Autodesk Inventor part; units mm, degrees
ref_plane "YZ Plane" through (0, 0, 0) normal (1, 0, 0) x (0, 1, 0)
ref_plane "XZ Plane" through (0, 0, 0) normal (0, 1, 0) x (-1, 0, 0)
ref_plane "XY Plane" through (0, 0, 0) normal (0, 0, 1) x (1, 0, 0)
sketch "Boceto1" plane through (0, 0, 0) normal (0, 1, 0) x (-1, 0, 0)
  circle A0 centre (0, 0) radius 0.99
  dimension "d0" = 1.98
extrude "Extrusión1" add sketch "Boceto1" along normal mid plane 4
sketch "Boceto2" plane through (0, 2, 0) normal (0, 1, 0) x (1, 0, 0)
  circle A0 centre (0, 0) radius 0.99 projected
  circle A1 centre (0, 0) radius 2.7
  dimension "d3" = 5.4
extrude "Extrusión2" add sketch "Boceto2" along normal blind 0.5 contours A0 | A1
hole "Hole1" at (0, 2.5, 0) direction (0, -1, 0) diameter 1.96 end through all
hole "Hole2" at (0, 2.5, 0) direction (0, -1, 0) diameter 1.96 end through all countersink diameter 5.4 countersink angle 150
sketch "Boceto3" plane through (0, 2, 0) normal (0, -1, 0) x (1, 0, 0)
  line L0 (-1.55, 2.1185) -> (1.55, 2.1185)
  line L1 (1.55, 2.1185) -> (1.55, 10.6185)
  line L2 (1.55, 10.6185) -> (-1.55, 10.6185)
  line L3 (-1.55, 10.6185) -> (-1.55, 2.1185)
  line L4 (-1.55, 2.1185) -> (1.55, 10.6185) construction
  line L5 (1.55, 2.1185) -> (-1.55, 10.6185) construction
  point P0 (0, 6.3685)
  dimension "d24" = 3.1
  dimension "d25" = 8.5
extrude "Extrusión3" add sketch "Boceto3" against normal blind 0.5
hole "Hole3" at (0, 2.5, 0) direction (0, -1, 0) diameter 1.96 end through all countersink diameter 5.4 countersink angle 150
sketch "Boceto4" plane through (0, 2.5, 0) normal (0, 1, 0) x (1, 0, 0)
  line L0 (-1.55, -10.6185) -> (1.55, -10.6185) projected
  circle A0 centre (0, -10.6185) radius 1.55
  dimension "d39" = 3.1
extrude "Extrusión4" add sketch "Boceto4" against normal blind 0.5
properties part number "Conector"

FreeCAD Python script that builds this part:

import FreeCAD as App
import Part
import Sketcher
Q = App.Units.Quantity


def add_polygon(sketch, points):
    """Adds a closed chain of lines whose ends are joined by coincident constraints."""
    first, n = sketch.GeometryCount, len(points)
    for a, b in zip(points, points[1:] + points[:1]):
        sketch.addGeometry(Part.LineSegment(App.Vector(*a, 0), App.Vector(*b, 0)), False)
    for i in range(n):
        sketch.addConstraint(Sketcher.Constraint("Coincident", first + i, 2, first + (i + 1) % n, 1))

doc = App.newDocument("Part")
body = doc.addObject("PartDesign::Body", "Body")

sketch1 = doc.addObject("Sketcher::SketchObject", "Sketch")
body.addObject(sketch1)
sketch1.AttachmentSupport = (doc.XZ_Plane, [""])
sketch1.MapMode = "FlatFace"
sketch1.addGeometry(Part.Circle(App.Vector(0, 0, 0), App.Vector(0, 0, 1), 0.99), False)
sketch1.addConstraint([
    Sketcher.Constraint("Coincident", 0, 3, -1, 1),
    Sketcher.Constraint("Diameter", 0, Q("1.98 mm")),
])
pad1 = doc.addObject("PartDesign::Pad", "Pad")
body.addObject(pad1)
pad1.Profile = sketch1
pad1.Length = 4
pad1.Midplane = True

sketch2 = doc.addObject("Sketcher::SketchObject", "Sketch001")
body.addObject(sketch2)
sketch2.AttachmentSupport = (doc.XZ_Plane, [""])
sketch2.MapMode = "FlatFace"
sketch2.AttachmentOffset = App.Placement(App.Vector(0, 0, -2), App.Rotation())
sketch2.addGeometry(Part.Circle(App.Vector(0, 0, 0), App.Vector(0, 0, 1), 2.7), False)
sketch2.addConstraint([
    Sketcher.Constraint("Coincident", 0, 3, -1, 1),
    Sketcher.Constraint("Diameter", 0, Q("5.4 mm")),
])
pad2 = doc.addObject("PartDesign::Pad", "Pad001")
body.addObject(pad2)
pad2.Profile = sketch2
pad2.Length = 0.5
pad2.Reversed = True

sketch3 = doc.addObject("Sketcher::SketchObject", "Sketch002")
body.addObject(sketch3)
sketch3.AttachmentSupport = (doc.XZ_Plane, [""])
sketch3.MapMode = "FlatFace"
sketch3.AttachmentOffset = App.Placement(App.Vector(0, 0, -2.5), App.Rotation())
sketch3.addGeometry(Part.Circle(App.Vector(0, 0, 0), App.Vector(0, 0, 1), 0.98), False)
sketch3.addConstraint([
    Sketcher.Constraint("Coincident", 0, 3, -1, 1),
    Sketcher.Constraint("Diameter", 0, Q("1.96 mm")),
])
doc.recompute()
hole = doc.addObject("PartDesign::Hole", "Hole")
body.addObject(hole)
hole.Profile = sketch3
hole.ThreadType = "None"
hole.Diameter = 1.96
hole.DepthType = "ThroughAll"
hole.Reversed = True

sketch4 = doc.addObject("Sketcher::SketchObject", "Sketch003")
body.addObject(sketch4)
sketch4.AttachmentSupport = (doc.XZ_Plane, [""])
sketch4.MapMode = "FlatFace"
sketch4.AttachmentOffset = App.Placement(App.Vector(0, 0, -2.5), App.Rotation())
sketch4.addGeometry(Part.Circle(App.Vector(0, 0, 0), App.Vector(0, 0, 1), 0.98), False)
sketch4.addConstraint([
    Sketcher.Constraint("Coincident", 0, 3, -1, 1),
    Sketcher.Constraint("Diameter", 0, Q("1.96 mm")),
])
doc.recompute()
hole2 = doc.addObject("PartDesign::Hole", "Hole001")
body.addObject(hole2)
hole2.Profile = sketch4
hole2.ThreadType = "None"
hole2.Diameter = 1.96
hole2.DepthType = "ThroughAll"
hole2.HoleCutType = "Countersink"
hole2.HoleCutDiameter = 5.4
hole2.HoleCutCountersinkAngle = 150
hole2.Reversed = True

sketch5 = doc.addObject("Sketcher::SketchObject", "Sketch004")
body.addObject(sketch5)
sketch5.AttachmentSupport = (doc.XZ_Plane, [""])
sketch5.MapMode = "FlatFace"
sketch5.AttachmentOffset = App.Placement(App.Vector(0, 0, -2), App.Rotation())
add_polygon(sketch5, [(-1.55, 10.6185), (-1.55, 2.1185), (1.55, 2.1185), (1.55, 10.6185)])
sketch5.addConstraint([
    Sketcher.Constraint("Vertical", 0),
    Sketcher.Constraint("Horizontal", 1),
    Sketcher.Constraint("Vertical", 2),
    Sketcher.Constraint("Horizontal", 3),
    Sketcher.Constraint("DistanceX", 1, 1, 1, 2, Q("3.1 mm")),
    Sketcher.Constraint("DistanceY", 0, 2, 0, 1, Q("8.5 mm")),
    Sketcher.Constraint("DistanceX", 0, 2, -1, 1, Q("1.55 mm")),
    Sketcher.Constraint("DistanceY", -1, 1, 0, 2, Q("2.1185 mm")),
])
pad3 = doc.addObject("PartDesign::Pad", "Pad002")
body.addObject(pad3)
pad3.Profile = sketch5
pad3.Length = 0.5
pad3.Reversed = True

sketch6 = doc.addObject("Sketcher::SketchObject", "Sketch005")
body.addObject(sketch6)
sketch6.AttachmentSupport = (doc.XZ_Plane, [""])
sketch6.MapMode = "FlatFace"
sketch6.AttachmentOffset = App.Placement(App.Vector(0, 0, -2.5), App.Rotation())
sketch6.addGeometry(Part.Circle(App.Vector(0, 0, 0), App.Vector(0, 0, 1), 0.98), False)
sketch6.addConstraint([
    Sketcher.Constraint("Coincident", 0, 3, -1, 1),
    Sketcher.Constraint("Diameter", 0, Q("1.96 mm")),
])
doc.recompute()
hole3 = doc.addObject("PartDesign::Hole", "Hole002")
body.addObject(hole3)
hole3.Profile = sketch6
hole3.ThreadType = "None"
hole3.Diameter = 1.96
hole3.DepthType = "ThroughAll"
hole3.HoleCutType = "Countersink"
hole3.HoleCutDiameter = 5.4
hole3.HoleCutCountersinkAngle = 150
hole3.Reversed = True

sketch7 = doc.addObject("Sketcher::SketchObject", "Sketch006")
body.addObject(sketch7)
sketch7.AttachmentSupport = (doc.XZ_Plane, [""])
sketch7.MapMode = "FlatFace"
sketch7.AttachmentOffset = App.Placement(App.Vector(0, 0, -2.5), App.Rotation())
sketch7.addGeometry(Part.Circle(App.Vector(0, 10.6185, 0), App.Vector(0, 0, 1), 1.55), False)
sketch7.addConstraint([
    Sketcher.Constraint("PointOnObject", 0, 3, -2),
    Sketcher.Constraint("Diameter", 0, Q("3.1 mm")),
    Sketcher.Constraint("DistanceY", -1, 1, 0, 3, Q("10.6185 mm")),
])
pad4 = doc.addObject("PartDesign::Pad", "Pad003")
body.addObject(pad4)
pad4.Profile = sketch7
pad4.Length = 0.5

doc.recompute()
